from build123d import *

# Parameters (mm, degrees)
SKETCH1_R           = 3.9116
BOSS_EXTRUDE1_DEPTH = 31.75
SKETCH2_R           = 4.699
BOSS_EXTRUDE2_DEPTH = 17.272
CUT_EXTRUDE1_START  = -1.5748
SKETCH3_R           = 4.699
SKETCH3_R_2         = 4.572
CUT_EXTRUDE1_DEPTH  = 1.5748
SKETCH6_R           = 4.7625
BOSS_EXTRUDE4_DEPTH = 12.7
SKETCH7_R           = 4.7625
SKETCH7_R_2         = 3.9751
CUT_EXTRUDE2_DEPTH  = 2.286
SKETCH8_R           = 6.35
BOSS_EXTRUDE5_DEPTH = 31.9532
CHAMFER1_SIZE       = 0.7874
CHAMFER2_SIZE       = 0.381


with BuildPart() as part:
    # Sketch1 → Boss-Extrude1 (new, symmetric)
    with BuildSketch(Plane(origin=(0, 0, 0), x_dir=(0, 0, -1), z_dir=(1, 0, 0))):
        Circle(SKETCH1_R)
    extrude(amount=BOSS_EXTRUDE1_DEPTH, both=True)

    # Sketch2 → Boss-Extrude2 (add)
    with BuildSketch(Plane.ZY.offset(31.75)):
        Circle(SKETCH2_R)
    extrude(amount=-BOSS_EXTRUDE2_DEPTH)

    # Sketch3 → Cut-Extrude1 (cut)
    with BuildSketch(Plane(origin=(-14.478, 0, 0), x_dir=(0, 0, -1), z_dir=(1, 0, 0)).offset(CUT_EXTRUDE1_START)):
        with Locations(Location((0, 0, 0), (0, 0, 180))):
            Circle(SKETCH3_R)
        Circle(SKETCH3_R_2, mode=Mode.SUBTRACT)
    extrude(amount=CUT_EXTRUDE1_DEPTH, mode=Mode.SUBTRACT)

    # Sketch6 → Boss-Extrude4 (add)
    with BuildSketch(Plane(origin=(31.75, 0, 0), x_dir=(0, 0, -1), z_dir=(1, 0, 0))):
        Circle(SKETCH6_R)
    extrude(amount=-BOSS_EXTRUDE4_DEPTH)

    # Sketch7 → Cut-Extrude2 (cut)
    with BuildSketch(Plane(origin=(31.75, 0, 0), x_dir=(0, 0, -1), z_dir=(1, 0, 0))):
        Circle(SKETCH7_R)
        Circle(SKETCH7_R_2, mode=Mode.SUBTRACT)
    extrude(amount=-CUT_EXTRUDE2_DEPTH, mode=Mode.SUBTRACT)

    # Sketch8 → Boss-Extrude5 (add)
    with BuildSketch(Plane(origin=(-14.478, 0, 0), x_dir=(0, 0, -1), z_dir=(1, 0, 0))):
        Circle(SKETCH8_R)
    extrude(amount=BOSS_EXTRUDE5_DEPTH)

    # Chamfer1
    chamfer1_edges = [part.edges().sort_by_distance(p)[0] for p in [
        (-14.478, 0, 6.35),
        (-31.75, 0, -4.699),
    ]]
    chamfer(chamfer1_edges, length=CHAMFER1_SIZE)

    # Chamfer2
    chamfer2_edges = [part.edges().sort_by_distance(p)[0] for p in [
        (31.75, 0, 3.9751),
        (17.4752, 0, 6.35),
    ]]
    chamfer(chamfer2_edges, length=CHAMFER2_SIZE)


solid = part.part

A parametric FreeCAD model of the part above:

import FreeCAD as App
import Part
import Sketcher

V = App.Vector
Q = App.Units.Quantity


def edges_at(feature, points):
    """Names of the edges that pass closest to the given points."""
    edges = feature.Shape.Edges
    near = lambda p: min(range(len(edges)), key=lambda i: edges[i].distToShape(Part.Vertex(*p))[0])
    return sorted({f"Edge{near(p) + 1}" for p in points})

doc = App.newDocument("Part")
body = doc.addObject("PartDesign::Body", "Body")

# Sketch on YZ plane
sketch1 = doc.addObject("Sketcher::SketchObject", "Sketch")
body.addObject(sketch1)
sketch1.AttachmentSupport = (doc.YZ_Plane, [""])
sketch1.MapMode = "FlatFace"
sketch1.addGeometry(Part.Circle(V(0, 0, 0), V(0, 0, 1), 3.9), False)
sketch1.addConstraint(Sketcher.Constraint("Coincident", 0, 3, -1, 1))
sketch1.addConstraint(Sketcher.Constraint("Diameter", 0, Q("0.308 in")))
pad1 = doc.addObject("PartDesign::Pad", "Pad")
body.addObject(pad1)
pad1.Profile = sketch1
pad1.Length = Q("2.5 in")
pad1.Midplane = True

# Sketch on YZ plane
sketch2 = doc.addObject("Sketcher::SketchObject", "Sketch001")
body.addObject(sketch2)
sketch2.AttachmentSupport = (doc.YZ_Plane, [""])
sketch2.MapMode = "FlatFace"
sketch2.AttachmentOffset = App.Placement(V(0, 0, -1.25 * 25.4), App.Rotation())
sketch2.addGeometry(Part.Circle(V(0, 0, 0), V(0, 0, 1), 4.7), False)
sketch2.addConstraint(Sketcher.Constraint("Coincident", 0, 3, -1, 1))
sketch2.addConstraint(Sketcher.Constraint("Diameter", 0, Q("0.37 in")))
pad2 = doc.addObject("PartDesign::Pad", "Pad001")
body.addObject(pad2)
pad2.Profile = sketch2
pad2.Length = Q("0.68 in")

# Sketch on YZ plane
sketch3 = doc.addObject("Sketcher::SketchObject", "Sketch002")
body.addObject(sketch3)
sketch3.AttachmentSupport = (doc.YZ_Plane, [""])
sketch3.MapMode = "FlatFace"
sketch3.AttachmentOffset = App.Placement(V(0, 0, -0.632 * 25.4), App.Rotation())
sketch3.addGeometry(Part.Circle(V(0, 0, 0), V(0, 0, 1), 4.7), False)
sketch3.addGeometry(Part.Circle(V(0, 0, 0), V(0, 0, 1), 4.6), False)
sketch3.addConstraint(Sketcher.Constraint("Coincident", 0, 3, -1, 1))
sketch3.addConstraint(Sketcher.Constraint("Coincident", 1, 3, -1, 1))
sketch3.addConstraint(Sketcher.Constraint("Diameter", 0, Q("0.37 in")))
sketch3.addConstraint(Sketcher.Constraint("Diameter", 1, Q("0.36 in")))
pocket1 = doc.addObject("PartDesign::Pocket", "Pocket")
body.addObject(pocket1)
pocket1.Profile = sketch3
pocket1.Length = Q("0.062 in")
pocket1.Reversed = True

# Sketch on YZ plane
sketch4 = doc.addObject("Sketcher::SketchObject", "Sketch003")
body.addObject(sketch4)
sketch4.AttachmentSupport = (doc.YZ_Plane, [""])
sketch4.MapMode = "FlatFace"
sketch4.AttachmentOffset = App.Placement(V(0, 0, 1.25 * 25.4), App.Rotation())
sketch4.addGeometry(Part.Circle(V(0, 0, 0), V(0, 0, 1), 4.8), False)
sketch4.addConstraint(Sketcher.Constraint("Coincident", 0, 3, -1, 1))
sketch4.addConstraint(Sketcher.Constraint("Diameter", 0, Q("0.375 in")))
pad3 = doc.addObject("PartDesign::Pad", "Pad002")
body.addObject(pad3)
pad3.Profile = sketch4
pad3.Length = Q("0.5 in")
pad3.Reversed = True

# Sketch on YZ plane
sketch5 = doc.addObject("Sketcher::SketchObject", "Sketch004")
body.addObject(sketch5)
sketch5.AttachmentSupport = (doc.YZ_Plane, [""])
sketch5.MapMode = "FlatFace"
sketch5.AttachmentOffset = App.Placement(V(0, 0, 1.25 * 25.4), App.Rotation())
sketch5.addGeometry(Part.Circle(V(0, 0, 0), V(0, 0, 1), 4.8), False)
sketch5.addGeometry(Part.Circle(V(0, 0, 0), V(0, 0, 1), 4), False)
sketch5.addConstraint(Sketcher.Constraint("Coincident", 0, 3, -1, 1))
sketch5.addConstraint(Sketcher.Constraint("Coincident", 1, 3, -1, 1))
sketch5.addConstraint(Sketcher.Constraint("Diameter", 0, Q("0.375 in")))
sketch5.addConstraint(Sketcher.Constraint("Diameter", 1, Q("0.313 in")))
pocket2 = doc.addObject("PartDesign::Pocket", "Pocket001")
body.addObject(pocket2)
pocket2.Profile = sketch5
pocket2.Length = Q("0.09 in")

# Sketch on YZ plane
sketch6 = doc.addObject("Sketcher::SketchObject", "Sketch005")
body.addObject(sketch6)
sketch6.AttachmentSupport = (doc.YZ_Plane, [""])
sketch6.MapMode = "FlatFace"
sketch6.AttachmentOffset = App.Placement(V(0, 0, -0.57 * 25.4), App.Rotation())
sketch6.addGeometry(Part.Circle(V(0, 0, 0), V(0, 0, 1), 6), False)
sketch6.addConstraint(Sketcher.Constraint("Coincident", 0, 3, -1, 1))
sketch6.addConstraint(Sketcher.Constraint("Diameter", 0, Q("0.5 in")))
pad4 = doc.addObject("PartDesign::Pad", "Pad003")
body.addObject(pad4)
pad4.Profile = sketch6
pad4.Length = Q("1.258 in")
doc.recompute()

chamfer = doc.addObject("PartDesign::Chamfer", "Chamfer")
body.addObject(chamfer)
chamfer.Base = (pad4, edges_at(pad4, [(-14.478, 0, 6.35), (-31.75, 0, -4.699)]))
chamfer.Size = Q("0.031 in")
doc.recompute()

chamfer2 = doc.addObject("PartDesign::Chamfer", "Chamfer001")
body.addObject(chamfer2)
chamfer2.Base = (chamfer, edges_at(chamfer, [(31.75, 0, 3.975), (17.475, 0, 6.35)]))
chamfer2.Size = Q("0.015 in")

doc.recompute()
